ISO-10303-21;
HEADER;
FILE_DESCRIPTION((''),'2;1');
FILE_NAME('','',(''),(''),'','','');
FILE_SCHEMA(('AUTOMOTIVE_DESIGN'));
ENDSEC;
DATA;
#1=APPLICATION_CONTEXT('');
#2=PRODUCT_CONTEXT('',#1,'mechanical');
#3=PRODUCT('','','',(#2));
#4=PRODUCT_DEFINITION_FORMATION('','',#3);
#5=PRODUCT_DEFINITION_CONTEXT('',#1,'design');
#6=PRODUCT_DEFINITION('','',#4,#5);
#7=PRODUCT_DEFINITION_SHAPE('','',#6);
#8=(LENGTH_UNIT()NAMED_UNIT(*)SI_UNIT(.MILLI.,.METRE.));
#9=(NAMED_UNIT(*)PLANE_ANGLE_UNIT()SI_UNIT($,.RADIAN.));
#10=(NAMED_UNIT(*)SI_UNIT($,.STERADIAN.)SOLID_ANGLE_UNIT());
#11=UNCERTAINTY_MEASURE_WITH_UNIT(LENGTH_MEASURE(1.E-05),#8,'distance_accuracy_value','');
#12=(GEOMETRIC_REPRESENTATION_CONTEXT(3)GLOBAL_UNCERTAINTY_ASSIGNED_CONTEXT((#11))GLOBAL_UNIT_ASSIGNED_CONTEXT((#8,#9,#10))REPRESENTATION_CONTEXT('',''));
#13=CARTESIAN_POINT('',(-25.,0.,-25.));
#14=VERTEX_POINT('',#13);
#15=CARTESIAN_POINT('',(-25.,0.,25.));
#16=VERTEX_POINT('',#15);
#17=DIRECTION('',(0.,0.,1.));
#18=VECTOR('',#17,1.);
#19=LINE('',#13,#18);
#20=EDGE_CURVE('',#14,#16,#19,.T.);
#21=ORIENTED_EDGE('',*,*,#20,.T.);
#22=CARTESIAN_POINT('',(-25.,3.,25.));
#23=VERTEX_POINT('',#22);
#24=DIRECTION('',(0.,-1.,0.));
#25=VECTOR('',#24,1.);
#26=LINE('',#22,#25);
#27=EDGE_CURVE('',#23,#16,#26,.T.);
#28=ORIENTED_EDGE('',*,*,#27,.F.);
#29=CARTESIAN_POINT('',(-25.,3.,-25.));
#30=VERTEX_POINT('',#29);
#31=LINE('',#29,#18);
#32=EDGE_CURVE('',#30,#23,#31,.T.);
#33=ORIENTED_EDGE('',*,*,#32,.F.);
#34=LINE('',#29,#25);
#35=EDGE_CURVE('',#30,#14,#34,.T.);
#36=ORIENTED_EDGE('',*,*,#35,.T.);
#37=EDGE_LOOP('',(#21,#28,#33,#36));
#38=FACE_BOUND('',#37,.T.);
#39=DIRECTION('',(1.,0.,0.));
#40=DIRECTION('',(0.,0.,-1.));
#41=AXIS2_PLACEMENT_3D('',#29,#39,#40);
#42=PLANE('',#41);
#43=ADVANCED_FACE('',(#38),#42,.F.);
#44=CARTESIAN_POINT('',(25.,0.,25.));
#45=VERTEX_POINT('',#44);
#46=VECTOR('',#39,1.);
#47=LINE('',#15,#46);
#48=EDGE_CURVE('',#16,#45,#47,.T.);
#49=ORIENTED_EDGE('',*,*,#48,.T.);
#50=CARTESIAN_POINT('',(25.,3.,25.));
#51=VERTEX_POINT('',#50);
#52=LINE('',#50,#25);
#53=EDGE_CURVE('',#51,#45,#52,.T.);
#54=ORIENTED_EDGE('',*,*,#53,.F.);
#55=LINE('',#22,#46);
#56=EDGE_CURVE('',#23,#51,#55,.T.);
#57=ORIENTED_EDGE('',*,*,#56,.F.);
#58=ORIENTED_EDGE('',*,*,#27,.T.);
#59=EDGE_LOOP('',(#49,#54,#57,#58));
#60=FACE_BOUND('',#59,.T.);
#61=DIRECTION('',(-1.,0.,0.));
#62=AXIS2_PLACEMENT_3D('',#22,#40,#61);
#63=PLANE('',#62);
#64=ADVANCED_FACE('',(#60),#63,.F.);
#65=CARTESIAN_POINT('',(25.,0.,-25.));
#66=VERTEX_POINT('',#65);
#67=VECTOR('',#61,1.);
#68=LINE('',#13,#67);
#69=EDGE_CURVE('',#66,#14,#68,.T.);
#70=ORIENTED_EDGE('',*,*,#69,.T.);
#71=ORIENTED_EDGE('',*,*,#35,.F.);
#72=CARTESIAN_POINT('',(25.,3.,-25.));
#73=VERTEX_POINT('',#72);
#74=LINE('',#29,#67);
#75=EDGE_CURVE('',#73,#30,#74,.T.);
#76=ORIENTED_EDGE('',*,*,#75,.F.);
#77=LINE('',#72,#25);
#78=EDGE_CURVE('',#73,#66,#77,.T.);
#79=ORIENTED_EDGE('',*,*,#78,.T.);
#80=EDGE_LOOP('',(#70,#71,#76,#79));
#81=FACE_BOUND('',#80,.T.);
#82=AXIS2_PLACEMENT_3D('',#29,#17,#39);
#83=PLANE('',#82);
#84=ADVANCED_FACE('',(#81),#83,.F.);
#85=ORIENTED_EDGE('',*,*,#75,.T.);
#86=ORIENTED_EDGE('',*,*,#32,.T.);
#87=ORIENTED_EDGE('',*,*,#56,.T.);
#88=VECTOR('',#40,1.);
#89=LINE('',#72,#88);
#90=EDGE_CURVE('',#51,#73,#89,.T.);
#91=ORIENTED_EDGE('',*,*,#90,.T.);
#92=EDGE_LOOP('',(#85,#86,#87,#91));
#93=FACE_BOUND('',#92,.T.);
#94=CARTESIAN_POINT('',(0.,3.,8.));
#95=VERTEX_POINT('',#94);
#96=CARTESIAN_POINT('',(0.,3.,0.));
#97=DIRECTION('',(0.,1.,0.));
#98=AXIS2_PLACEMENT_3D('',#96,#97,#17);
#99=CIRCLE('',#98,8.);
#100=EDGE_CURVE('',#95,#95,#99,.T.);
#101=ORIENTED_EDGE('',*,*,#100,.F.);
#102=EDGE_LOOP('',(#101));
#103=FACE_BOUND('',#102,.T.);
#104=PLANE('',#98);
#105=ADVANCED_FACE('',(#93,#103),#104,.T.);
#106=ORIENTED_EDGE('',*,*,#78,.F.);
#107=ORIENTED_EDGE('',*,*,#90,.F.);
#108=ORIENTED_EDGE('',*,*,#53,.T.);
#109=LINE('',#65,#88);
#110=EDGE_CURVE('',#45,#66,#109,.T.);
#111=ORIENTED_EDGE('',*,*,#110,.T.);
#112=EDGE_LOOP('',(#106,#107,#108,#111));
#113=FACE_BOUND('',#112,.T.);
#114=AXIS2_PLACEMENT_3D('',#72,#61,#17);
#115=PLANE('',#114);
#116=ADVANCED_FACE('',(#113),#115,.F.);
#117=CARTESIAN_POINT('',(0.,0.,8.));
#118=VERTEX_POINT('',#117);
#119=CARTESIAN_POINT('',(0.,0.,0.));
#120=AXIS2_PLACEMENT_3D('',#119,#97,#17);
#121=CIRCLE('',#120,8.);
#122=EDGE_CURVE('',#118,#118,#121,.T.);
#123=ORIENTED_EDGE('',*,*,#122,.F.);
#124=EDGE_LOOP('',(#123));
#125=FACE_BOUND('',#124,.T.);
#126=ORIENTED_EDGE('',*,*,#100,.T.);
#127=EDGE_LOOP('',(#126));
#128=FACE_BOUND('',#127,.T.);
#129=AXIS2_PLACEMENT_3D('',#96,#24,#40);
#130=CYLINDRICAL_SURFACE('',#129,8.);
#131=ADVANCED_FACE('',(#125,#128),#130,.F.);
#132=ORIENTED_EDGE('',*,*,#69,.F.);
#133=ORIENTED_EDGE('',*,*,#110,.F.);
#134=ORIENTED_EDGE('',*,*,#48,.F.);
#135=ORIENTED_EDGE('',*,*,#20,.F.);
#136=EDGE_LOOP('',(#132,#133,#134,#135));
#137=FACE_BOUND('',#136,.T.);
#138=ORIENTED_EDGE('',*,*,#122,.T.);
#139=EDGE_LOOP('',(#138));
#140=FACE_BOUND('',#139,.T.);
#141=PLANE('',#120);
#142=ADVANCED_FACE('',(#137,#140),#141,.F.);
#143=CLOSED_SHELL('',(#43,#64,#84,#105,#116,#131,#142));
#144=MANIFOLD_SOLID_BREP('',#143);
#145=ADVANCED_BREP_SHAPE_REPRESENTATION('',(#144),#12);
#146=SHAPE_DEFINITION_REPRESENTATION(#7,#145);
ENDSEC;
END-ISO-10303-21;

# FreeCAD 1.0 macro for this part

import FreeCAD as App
import Part
import Sketcher

doc = App.newDocument("Part")
params = doc.addObject("Spreadsheet::Sheet", "Params")
for row, (alias, value) in enumerate([
    ("sketch1_diameter", "16 mm"),
    ("sketch1_width", "50 mm"),
    ("pad1_length", "3 mm"),
], start=1):
    params.set(f"A{row}", alias)
    params.set(f"B{row}", "=" + value)
    params.setAlias(f"B{row}", alias)

body = doc.addObject("PartDesign::Body", "Body")

# Sketch on XZ plane
sketch1 = doc.addObject("Sketcher::SketchObject", "Sketch")
body.addObject(sketch1)
sketch1.AttachmentSupport = (doc.XZ_Plane, [""])
sketch1.MapMode = "FlatFace"
sketch1.addGeometry(Part.LineSegment(App.Vector(-25, -25, 0), App.Vector(-25, 25, 0)), False)
sketch1.addGeometry(Part.LineSegment(App.Vector(-25, 25, 0), App.Vector(25, 25, 0)), False)
sketch1.addGeometry(Part.LineSegment(App.Vector(25, 25, 0), App.Vector(25, -25, 0)), False)
sketch1.addGeometry(Part.LineSegment(App.Vector(25, -25, 0), App.Vector(-25, -25, 0)), False)
sketch1.addGeometry(Part.Circle(App.Vector(0, 0, 0), App.Vector(0, 0, 1), 8), False)
sketch1.addConstraint(Sketcher.Constraint("Coincident", 0, 2, 1, 1))
sketch1.addConstraint(Sketcher.Constraint("Coincident", 1, 2, 2, 1))
sketch1.addConstraint(Sketcher.Constraint("Coincident", 2, 2, 3, 1))
sketch1.addConstraint(Sketcher.Constraint("Coincident", 3, 2, 0, 1))
sketch1.addConstraint(Sketcher.Constraint("Vertical", 0))
sketch1.addConstraint(Sketcher.Constraint("Horizontal", 1))
sketch1.addConstraint(Sketcher.Constraint("Vertical", 2))
sketch1.addConstraint(Sketcher.Constraint("Horizontal", 3))
sketch1.addConstraint(Sketcher.Constraint("Coincident", 4, 3, -1, 1))
sketch1.addConstraint(Sketcher.Constraint("Symmetric", 0, 2, 2, 2, -1, 1))
sketch1.addConstraint(Sketcher.Constraint("Equal", 3, 0))
sketch1.addConstraint(Sketcher.Constraint("Diameter", 4, 16.0))
sketch1.addConstraint(Sketcher.Constraint("DistanceX", 1, 1, 1, 2, 50.0))
sketch1.setExpression("Constraints[11]", "Params.sketch1_diameter")
sketch1.setExpression("Constraints[12]", "Params.sketch1_width")
pad1 = doc.addObject("PartDesign::Pad", "Pad")
body.addObject(pad1)
pad1.Profile = sketch1
pad1.setExpression("Length", "Params.pad1_length")
pad1.Reversed = True

doc.recompute()
